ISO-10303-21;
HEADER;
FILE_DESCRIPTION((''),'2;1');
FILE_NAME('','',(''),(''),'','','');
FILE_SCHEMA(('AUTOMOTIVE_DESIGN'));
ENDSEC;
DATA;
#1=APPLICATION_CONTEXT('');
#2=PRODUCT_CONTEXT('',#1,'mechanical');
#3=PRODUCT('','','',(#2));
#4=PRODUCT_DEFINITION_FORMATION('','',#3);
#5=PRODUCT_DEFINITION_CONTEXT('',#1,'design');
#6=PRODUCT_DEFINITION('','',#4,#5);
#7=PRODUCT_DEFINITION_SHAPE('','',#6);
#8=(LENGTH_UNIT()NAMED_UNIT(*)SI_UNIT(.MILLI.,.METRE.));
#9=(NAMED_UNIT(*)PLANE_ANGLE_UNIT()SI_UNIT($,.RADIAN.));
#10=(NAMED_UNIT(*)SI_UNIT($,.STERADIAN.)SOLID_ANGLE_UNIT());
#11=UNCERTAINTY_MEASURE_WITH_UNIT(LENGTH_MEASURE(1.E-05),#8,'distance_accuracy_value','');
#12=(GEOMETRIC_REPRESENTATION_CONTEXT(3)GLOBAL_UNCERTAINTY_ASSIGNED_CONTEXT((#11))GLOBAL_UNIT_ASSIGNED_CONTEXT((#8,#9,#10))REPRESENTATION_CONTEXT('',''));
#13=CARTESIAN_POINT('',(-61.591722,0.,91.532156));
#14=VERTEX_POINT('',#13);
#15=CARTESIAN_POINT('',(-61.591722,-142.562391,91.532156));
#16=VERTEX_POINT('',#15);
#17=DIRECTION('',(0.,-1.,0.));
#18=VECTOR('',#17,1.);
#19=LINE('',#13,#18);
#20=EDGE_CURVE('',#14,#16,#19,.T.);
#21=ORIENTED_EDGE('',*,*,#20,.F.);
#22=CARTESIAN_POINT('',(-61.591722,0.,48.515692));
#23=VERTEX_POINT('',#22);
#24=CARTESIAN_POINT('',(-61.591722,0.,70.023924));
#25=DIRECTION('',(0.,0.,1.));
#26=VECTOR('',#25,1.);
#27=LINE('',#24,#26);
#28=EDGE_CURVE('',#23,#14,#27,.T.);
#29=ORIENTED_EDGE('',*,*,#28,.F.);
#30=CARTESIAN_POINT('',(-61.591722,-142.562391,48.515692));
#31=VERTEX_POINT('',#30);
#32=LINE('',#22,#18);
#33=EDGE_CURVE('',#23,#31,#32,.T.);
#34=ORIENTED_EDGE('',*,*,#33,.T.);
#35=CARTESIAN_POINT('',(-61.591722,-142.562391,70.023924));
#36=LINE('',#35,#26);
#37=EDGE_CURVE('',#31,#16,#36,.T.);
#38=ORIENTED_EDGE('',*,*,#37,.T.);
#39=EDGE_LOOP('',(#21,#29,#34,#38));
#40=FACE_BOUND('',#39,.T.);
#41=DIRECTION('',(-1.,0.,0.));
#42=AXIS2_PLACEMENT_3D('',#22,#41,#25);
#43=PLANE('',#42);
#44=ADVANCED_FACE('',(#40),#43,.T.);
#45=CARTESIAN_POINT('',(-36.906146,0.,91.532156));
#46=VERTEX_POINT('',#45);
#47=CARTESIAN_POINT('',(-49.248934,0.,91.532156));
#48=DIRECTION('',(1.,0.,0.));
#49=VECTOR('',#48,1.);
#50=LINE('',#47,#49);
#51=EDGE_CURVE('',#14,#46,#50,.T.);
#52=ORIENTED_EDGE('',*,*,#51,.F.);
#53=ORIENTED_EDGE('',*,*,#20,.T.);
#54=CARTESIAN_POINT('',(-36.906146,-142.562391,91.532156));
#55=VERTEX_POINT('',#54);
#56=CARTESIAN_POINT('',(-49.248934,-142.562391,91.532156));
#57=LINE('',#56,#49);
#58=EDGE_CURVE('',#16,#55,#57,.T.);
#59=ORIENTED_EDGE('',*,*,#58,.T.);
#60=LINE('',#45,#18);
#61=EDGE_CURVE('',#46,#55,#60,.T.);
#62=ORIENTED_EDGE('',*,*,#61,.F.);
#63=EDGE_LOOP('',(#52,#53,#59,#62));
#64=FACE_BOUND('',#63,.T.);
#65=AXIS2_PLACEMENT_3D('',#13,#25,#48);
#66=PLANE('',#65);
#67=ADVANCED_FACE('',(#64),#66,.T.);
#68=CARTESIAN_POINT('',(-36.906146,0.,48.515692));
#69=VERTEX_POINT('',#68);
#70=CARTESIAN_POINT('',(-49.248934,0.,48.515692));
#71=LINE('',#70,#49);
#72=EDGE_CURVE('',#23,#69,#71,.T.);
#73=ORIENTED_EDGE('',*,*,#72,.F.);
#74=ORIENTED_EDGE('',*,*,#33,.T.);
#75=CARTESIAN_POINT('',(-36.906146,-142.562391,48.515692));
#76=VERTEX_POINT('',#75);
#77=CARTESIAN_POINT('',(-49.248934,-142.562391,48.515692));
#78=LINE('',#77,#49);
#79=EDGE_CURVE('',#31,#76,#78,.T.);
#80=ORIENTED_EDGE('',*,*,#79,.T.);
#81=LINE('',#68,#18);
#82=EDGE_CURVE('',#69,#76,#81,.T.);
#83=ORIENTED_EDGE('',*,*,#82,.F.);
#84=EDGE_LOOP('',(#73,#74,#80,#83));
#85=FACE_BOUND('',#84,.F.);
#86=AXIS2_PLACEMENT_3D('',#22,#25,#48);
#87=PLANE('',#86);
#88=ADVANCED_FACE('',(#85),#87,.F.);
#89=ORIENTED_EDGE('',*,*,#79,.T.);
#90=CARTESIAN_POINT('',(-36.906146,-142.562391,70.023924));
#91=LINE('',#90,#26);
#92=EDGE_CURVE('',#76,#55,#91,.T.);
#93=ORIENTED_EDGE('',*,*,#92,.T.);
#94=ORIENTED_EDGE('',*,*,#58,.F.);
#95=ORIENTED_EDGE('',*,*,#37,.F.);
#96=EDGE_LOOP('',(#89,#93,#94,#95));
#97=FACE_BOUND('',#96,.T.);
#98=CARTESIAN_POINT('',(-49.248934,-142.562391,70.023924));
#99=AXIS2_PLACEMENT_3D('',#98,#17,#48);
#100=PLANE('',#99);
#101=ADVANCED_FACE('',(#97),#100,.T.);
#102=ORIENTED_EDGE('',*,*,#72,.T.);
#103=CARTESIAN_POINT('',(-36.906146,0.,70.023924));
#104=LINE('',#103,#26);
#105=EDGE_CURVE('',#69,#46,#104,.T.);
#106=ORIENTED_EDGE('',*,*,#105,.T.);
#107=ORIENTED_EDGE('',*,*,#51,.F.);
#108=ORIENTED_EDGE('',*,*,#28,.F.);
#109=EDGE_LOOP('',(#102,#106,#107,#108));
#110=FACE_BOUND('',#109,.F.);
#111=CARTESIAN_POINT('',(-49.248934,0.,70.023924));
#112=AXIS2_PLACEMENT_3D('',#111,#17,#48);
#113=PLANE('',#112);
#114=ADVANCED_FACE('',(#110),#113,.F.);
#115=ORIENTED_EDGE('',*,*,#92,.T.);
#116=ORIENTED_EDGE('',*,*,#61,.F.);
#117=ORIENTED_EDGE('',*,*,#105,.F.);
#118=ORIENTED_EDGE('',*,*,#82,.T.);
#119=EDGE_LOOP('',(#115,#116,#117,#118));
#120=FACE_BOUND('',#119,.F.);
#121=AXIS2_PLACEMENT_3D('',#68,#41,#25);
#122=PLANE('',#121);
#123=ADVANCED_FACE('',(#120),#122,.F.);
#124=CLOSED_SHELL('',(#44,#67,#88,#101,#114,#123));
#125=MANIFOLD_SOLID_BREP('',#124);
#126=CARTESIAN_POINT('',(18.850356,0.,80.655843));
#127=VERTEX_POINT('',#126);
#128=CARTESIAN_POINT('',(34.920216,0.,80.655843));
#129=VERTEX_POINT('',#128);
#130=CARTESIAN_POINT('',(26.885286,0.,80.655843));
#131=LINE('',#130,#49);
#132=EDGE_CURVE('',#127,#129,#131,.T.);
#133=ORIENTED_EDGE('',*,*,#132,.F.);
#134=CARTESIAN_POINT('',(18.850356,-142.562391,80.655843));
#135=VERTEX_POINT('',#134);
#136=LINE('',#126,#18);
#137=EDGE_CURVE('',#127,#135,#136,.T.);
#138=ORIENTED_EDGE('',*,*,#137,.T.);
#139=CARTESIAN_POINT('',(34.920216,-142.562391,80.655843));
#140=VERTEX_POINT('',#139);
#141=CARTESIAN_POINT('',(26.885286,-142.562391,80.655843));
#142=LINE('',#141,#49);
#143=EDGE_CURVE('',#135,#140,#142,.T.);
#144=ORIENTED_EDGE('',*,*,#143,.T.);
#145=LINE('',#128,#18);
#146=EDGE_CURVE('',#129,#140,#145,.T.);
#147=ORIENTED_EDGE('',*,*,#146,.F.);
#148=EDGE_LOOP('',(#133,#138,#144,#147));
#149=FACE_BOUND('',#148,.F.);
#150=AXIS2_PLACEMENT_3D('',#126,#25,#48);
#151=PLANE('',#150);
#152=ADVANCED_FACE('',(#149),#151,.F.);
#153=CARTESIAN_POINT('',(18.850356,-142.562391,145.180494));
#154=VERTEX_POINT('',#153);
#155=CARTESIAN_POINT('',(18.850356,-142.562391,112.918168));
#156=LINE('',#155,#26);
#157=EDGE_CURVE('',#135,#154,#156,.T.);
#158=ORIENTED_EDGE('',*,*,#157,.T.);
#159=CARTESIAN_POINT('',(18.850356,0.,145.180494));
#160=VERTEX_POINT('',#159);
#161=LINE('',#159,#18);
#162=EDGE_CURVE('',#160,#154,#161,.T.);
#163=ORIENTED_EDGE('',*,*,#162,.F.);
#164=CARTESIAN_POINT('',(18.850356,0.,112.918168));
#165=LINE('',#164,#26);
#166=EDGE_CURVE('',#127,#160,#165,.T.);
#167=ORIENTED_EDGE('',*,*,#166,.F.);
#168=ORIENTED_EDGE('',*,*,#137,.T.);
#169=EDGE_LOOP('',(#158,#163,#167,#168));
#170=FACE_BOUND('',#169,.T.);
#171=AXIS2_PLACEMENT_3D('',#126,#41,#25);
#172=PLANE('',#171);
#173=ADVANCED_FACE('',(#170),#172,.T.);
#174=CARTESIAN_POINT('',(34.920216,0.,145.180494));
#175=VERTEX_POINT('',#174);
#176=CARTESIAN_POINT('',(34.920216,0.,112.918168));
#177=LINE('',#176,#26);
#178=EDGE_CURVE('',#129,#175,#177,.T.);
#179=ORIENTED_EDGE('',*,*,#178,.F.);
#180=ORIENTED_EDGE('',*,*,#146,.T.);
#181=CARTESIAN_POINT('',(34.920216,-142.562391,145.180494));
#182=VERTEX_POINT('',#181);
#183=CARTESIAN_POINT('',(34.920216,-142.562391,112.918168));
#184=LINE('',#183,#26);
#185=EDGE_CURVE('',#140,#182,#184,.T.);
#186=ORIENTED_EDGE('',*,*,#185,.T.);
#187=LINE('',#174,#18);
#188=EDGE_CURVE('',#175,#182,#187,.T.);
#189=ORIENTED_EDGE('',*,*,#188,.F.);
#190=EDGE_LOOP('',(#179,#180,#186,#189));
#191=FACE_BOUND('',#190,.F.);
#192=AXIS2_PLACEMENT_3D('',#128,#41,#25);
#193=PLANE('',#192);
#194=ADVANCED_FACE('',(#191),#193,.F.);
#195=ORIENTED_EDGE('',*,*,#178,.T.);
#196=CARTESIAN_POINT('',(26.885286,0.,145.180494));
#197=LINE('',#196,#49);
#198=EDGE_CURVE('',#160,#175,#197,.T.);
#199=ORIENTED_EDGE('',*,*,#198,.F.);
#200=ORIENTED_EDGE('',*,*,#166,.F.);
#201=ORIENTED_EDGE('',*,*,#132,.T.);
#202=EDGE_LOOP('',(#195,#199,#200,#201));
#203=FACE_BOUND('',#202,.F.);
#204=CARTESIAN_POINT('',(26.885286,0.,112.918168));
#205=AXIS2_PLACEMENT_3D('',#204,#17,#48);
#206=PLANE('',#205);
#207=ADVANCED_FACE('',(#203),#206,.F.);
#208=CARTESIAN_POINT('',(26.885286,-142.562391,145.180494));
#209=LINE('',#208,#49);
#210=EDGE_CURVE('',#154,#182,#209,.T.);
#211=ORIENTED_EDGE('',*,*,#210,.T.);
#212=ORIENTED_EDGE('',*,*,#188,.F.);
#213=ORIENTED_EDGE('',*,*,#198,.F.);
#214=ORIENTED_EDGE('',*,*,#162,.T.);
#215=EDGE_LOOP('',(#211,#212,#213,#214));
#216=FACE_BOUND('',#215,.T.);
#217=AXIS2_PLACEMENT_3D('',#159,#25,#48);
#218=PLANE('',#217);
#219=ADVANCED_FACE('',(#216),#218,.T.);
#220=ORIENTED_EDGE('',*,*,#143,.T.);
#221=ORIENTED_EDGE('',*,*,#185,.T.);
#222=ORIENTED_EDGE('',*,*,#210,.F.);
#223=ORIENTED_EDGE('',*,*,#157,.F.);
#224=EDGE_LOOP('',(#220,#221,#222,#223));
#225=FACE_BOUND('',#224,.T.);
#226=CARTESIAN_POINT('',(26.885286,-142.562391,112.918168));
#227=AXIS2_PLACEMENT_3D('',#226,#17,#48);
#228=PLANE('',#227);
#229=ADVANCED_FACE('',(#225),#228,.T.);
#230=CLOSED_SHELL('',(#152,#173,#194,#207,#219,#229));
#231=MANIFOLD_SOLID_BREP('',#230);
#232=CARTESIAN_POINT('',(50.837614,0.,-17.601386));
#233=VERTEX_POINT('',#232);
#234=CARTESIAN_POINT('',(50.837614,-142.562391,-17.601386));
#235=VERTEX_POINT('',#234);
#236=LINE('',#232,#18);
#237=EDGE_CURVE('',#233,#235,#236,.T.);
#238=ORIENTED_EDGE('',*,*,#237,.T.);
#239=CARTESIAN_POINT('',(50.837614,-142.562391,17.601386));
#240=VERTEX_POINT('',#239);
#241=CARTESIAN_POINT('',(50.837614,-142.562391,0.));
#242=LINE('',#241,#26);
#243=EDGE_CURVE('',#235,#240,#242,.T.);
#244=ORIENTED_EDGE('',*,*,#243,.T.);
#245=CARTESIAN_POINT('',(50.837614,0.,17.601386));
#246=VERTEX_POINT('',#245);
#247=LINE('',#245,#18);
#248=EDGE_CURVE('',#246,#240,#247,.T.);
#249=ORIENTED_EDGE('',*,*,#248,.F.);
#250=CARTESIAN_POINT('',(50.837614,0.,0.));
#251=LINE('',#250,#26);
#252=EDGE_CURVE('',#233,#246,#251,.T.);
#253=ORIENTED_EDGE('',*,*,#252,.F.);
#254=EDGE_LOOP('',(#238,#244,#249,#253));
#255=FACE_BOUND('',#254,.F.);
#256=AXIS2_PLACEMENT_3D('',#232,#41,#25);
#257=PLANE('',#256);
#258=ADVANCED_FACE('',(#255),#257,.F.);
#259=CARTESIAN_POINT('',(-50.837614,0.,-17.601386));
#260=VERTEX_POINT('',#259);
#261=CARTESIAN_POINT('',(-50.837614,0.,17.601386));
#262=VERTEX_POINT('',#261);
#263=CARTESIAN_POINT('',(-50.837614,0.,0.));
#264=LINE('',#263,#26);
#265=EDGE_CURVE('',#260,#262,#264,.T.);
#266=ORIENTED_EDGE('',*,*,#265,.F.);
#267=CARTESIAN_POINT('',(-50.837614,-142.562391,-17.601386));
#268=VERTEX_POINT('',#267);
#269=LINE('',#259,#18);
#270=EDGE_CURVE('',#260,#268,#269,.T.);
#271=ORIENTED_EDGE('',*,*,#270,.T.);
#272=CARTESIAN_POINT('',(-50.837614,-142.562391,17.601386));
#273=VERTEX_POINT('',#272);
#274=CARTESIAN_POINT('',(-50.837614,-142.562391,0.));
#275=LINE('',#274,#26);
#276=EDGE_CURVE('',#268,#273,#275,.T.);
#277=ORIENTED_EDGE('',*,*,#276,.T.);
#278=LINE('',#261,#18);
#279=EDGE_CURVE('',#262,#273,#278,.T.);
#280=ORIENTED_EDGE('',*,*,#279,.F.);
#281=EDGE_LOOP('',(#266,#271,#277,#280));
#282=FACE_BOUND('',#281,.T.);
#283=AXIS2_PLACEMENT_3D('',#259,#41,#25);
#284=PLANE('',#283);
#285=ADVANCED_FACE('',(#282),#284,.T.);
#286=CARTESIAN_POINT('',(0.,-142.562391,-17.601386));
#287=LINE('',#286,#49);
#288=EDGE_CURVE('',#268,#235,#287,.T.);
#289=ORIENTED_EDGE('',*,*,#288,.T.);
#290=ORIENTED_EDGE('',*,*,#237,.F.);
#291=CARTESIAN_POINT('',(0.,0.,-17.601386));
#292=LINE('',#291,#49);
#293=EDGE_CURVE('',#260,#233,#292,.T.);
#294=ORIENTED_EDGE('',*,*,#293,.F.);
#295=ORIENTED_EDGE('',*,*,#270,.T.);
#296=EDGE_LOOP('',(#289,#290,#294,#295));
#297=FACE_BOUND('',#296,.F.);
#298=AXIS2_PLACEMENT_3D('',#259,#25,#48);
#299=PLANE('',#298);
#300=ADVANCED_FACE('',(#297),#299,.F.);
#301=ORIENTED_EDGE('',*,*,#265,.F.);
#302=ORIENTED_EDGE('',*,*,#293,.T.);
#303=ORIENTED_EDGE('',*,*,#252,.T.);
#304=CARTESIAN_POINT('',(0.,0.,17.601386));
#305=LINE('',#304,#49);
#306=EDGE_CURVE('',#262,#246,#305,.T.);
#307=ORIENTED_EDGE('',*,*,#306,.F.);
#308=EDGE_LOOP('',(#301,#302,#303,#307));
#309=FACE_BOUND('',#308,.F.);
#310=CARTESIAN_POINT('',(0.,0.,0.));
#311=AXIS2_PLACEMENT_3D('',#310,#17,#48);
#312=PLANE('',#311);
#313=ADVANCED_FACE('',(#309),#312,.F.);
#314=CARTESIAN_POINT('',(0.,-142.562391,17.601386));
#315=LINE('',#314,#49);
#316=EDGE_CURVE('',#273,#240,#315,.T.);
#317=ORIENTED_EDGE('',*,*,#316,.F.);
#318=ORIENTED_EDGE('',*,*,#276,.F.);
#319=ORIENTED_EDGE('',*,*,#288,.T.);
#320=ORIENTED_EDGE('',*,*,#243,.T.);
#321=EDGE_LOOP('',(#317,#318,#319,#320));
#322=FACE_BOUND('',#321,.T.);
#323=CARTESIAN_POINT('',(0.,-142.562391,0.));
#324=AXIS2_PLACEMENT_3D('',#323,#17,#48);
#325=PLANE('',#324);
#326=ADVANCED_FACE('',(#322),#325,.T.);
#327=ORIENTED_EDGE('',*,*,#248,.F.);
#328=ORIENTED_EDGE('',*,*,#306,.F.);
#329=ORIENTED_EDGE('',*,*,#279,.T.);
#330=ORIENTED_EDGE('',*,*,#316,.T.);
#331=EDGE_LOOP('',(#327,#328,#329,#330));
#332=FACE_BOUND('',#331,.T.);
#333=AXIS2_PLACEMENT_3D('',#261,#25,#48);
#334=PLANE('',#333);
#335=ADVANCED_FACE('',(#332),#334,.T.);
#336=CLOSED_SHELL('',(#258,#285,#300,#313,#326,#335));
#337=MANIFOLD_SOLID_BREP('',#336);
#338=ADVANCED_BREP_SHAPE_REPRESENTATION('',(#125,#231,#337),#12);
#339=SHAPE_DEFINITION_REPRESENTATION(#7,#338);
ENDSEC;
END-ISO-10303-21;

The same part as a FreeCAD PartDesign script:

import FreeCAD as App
import Part
import Sketcher
Q = App.Units.Quantity

doc = App.newDocument("Part")
body = doc.addObject("PartDesign::Body", "Body")
body.AllowCompound = True

sketch1 = body.newObject("Sketcher::SketchObject", "Sketch")
sketch1.AttachmentSupport = (doc.getObject("XZ_Plane"), [""])
sketch1.MapMode = "FlatFace"
sketch1.addGeometry([
    Part.LineSegment(App.Vector(19, 145, 0), App.Vector(19, 81, 0)),
    Part.LineSegment(App.Vector(19, 81, 0), App.Vector(35, 81, 0)),
    Part.LineSegment(App.Vector(35, 81, 0), App.Vector(35, 145, 0)),
    Part.LineSegment(App.Vector(35, 145, 0), App.Vector(19, 145, 0)),
    Part.LineSegment(App.Vector(-62, 92, 0), App.Vector(-62, 49, 0)),
    Part.LineSegment(App.Vector(-62, 49, 0), App.Vector(-37, 49, 0)),
    Part.LineSegment(App.Vector(-37, 49, 0), App.Vector(-37, 92, 0)),
    Part.LineSegment(App.Vector(-37, 92, 0), App.Vector(-62, 92, 0)),
    Part.LineSegment(App.Vector(-51, 18, 0), App.Vector(-51, -18, 0)),
    Part.LineSegment(App.Vector(-51, -18, 0), App.Vector(51, -18, 0)),
    Part.LineSegment(App.Vector(51, -18, 0), App.Vector(51, 18, 0)),
    Part.LineSegment(App.Vector(51, 18, 0), App.Vector(-51, 18, 0)),
], False)
sketch1.addConstraint([
    Sketcher.Constraint("Coincident", 0, 2, 1, 1),
    Sketcher.Constraint("Coincident", 1, 2, 2, 1),
    Sketcher.Constraint("Coincident", 2, 2, 3, 1),
    Sketcher.Constraint("Coincident", 3, 2, 0, 1),
    Sketcher.Constraint("Coincident", 4, 2, 5, 1),
    Sketcher.Constraint("Coincident", 5, 2, 6, 1),
    Sketcher.Constraint("Coincident", 6, 2, 7, 1),
    Sketcher.Constraint("Coincident", 7, 2, 4, 1),
    Sketcher.Constraint("Coincident", 8, 2, 9, 1),
    Sketcher.Constraint("Coincident", 9, 2, 10, 1),
    Sketcher.Constraint("Coincident", 10, 2, 11, 1),
    Sketcher.Constraint("Coincident", 11, 2, 8, 1),
    Sketcher.Constraint("Vertical", 0),
    Sketcher.Constraint("Horizontal", 1),
    Sketcher.Constraint("Vertical", 2),
    Sketcher.Constraint("Horizontal", 3),
    Sketcher.Constraint("Vertical", 4),
    Sketcher.Constraint("Horizontal", 5),
    Sketcher.Constraint("Vertical", 6),
    Sketcher.Constraint("Horizontal", 7),
    Sketcher.Constraint("Vertical", 8),
    Sketcher.Constraint("Horizontal", 9),
    Sketcher.Constraint("Vertical", 10),
    Sketcher.Constraint("Horizontal", 11),
    Sketcher.Constraint("Symmetric", 8, 2, 10, 2, -1, 1),
    Sketcher.Constraint("DistanceX", 1, 1, 1, 2, Q("16.06986 mm")),
    Sketcher.Constraint("DistanceX", 9, 1, 9, 2, Q("101.675228 mm")),
    Sketcher.Constraint("DistanceY", 0, 2, 0, 1, Q("64.524651 mm")),
    Sketcher.Constraint("DistanceY", 4, 2, 3, 2, Q("96.664802 mm")),
    Sketcher.Constraint("DistanceX", 5, 2, 0, 2, Q("55.756502 mm")),
    Sketcher.Constraint("DistanceX", 5, 1, 5, 2, Q("24.685576 mm")),
    Sketcher.Constraint("DistanceY", 4, 2, 4, 1, Q("43.016464 mm")),
    Sketcher.Constraint("DistanceY", 8, 2, 8, 1, Q("35.202772 mm")),
    Sketcher.Constraint("DistanceX", 4, 2, -1, 1, Q("61.591722 mm")),
    Sketcher.Constraint("DistanceY", 8, 2, 4, 2, Q("66.117078 mm")),
])
pad1 = body.newObject("PartDesign::Pad", "Pad")
pad1.Profile = sketch1
pad1.Length = 142.562391

doc.recompute()
